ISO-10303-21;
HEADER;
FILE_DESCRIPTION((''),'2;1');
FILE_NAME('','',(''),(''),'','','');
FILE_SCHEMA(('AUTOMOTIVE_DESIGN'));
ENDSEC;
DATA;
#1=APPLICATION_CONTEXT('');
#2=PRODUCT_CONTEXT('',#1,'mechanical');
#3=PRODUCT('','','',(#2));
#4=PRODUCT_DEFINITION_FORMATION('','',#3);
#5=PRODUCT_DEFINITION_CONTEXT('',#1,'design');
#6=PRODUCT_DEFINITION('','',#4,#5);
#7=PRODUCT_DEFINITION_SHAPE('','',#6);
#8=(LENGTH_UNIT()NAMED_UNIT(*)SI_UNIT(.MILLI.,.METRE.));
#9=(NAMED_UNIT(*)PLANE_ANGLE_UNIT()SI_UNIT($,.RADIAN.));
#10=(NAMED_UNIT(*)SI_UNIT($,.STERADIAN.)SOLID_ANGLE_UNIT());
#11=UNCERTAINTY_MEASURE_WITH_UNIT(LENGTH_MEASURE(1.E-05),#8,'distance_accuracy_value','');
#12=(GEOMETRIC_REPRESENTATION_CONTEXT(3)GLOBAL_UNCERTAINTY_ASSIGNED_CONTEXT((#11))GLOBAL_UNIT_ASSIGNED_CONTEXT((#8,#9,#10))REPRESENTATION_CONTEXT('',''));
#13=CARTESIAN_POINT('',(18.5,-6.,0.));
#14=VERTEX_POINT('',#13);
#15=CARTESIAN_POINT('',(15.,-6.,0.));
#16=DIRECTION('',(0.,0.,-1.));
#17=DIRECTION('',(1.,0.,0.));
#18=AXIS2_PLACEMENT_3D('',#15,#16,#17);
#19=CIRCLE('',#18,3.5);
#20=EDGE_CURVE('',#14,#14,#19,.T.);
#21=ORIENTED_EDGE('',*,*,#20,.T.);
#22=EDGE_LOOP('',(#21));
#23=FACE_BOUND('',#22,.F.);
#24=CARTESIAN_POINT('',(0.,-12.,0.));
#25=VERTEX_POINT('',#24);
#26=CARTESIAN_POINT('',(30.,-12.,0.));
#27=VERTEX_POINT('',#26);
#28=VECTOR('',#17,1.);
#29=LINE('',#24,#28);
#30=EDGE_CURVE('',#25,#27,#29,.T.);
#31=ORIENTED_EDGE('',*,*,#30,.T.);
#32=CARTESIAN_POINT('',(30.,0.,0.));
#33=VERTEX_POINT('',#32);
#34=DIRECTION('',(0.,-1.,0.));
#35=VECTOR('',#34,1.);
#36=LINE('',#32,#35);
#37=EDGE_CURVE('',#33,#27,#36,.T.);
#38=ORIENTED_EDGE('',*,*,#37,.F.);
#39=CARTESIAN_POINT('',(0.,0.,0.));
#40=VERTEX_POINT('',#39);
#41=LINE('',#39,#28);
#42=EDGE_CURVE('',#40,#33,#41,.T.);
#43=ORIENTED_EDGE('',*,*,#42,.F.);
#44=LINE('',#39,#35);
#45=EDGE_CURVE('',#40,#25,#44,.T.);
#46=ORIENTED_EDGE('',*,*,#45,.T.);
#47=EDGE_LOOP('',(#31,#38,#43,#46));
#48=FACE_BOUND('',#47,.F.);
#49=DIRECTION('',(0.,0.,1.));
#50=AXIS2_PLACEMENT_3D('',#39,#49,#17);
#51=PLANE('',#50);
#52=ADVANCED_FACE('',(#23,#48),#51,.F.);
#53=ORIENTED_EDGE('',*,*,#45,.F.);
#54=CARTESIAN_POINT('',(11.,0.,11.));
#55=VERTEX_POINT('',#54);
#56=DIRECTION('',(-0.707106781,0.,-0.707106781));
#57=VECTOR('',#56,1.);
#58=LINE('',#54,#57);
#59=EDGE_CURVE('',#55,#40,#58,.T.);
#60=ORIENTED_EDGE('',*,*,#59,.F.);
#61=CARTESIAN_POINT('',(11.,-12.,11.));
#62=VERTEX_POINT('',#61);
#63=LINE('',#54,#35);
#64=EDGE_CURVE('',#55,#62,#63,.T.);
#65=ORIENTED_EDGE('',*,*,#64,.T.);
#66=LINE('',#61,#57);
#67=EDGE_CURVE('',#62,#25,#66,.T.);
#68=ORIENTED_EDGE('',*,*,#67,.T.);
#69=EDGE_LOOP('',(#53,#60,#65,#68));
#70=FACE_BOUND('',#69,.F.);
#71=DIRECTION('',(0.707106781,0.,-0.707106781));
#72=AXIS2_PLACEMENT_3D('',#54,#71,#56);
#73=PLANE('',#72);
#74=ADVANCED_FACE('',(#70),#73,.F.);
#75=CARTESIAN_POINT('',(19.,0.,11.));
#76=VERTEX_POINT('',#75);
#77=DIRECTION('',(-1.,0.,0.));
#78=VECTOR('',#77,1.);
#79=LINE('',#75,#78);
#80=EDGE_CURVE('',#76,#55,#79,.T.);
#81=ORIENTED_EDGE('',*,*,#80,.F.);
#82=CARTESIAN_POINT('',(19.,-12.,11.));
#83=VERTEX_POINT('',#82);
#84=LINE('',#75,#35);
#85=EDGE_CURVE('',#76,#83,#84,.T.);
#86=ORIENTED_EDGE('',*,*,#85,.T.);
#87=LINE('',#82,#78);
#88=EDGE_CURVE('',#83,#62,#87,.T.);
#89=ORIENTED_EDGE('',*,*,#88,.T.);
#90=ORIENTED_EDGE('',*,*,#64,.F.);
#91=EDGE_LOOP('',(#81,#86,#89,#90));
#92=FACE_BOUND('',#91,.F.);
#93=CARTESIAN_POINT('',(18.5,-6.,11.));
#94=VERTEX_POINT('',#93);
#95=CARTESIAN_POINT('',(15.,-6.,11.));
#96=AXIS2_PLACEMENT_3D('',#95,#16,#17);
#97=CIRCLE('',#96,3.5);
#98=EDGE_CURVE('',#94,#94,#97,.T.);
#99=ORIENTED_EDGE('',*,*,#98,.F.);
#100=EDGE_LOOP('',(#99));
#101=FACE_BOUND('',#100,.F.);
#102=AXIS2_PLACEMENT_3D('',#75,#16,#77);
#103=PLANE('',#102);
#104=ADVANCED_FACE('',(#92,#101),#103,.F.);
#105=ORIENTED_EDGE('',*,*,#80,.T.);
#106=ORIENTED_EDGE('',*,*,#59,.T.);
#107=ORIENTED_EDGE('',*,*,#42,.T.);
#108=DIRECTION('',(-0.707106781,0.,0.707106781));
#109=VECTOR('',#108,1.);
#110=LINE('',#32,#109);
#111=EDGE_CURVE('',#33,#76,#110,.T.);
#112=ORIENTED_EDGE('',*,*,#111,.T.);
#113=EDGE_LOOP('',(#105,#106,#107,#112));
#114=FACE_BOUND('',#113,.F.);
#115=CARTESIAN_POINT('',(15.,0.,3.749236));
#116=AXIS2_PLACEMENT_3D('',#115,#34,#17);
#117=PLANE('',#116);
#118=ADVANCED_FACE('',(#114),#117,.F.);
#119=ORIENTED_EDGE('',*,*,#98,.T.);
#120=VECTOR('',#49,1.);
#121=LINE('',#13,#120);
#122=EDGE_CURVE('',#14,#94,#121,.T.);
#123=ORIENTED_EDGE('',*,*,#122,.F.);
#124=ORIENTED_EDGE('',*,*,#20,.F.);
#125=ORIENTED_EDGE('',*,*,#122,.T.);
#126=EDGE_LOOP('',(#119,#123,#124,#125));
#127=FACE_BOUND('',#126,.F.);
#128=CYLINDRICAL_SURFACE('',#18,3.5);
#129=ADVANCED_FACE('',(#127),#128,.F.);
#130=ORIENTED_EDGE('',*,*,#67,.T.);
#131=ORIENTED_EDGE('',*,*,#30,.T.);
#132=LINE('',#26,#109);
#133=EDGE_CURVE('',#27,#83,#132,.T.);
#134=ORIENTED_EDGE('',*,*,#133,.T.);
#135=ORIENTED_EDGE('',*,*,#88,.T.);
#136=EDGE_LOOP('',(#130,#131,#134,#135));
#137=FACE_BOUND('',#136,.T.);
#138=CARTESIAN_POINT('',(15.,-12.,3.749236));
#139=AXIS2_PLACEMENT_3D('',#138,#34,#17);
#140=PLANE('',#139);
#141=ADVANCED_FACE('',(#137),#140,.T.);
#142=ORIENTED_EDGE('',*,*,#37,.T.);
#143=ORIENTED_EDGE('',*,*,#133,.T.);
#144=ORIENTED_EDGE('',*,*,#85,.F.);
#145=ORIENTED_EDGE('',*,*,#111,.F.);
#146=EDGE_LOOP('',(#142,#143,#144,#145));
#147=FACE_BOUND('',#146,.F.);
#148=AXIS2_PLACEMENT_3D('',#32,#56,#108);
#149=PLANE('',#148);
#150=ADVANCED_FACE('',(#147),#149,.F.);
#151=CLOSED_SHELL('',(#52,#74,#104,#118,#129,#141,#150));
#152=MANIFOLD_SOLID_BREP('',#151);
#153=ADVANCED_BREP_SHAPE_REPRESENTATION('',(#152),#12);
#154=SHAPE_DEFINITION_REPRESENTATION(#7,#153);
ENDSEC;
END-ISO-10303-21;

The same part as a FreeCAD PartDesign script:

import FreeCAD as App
import Part
import Sketcher


def add_polygon(sketch, points):
    """Adds a closed chain of lines whose ends are joined by coincident constraints."""
    first, n = sketch.GeometryCount, len(points)
    for a, b in zip(points, points[1:] + points[:1]):
        sketch.addGeometry(Part.LineSegment(App.Vector(*a, 0), App.Vector(*b, 0)), False)
    for i in range(n):
        sketch.addConstraint(Sketcher.Constraint("Coincident", first + i, 2, first + (i + 1) % n, 1))

doc = App.newDocument("Part")
params = doc.addObject("Spreadsheet::Sheet", "Params")
for row, (alias, value) in enumerate([
    ("sketch1_width", "30 mm"),
    ("sketch1_width2", "8 mm"),
    ("pad1_length", "12 mm"),
    ("sketch2_diameter", "7 mm"),
], start=1):
    params.set(f"A{row}", alias)
    params.set(f"B{row}", "=" + value)
    params.setAlias(f"B{row}", alias)

body = doc.addObject("PartDesign::Body", "Body")

# Sketch on XZ plane
sketch1 = body.newObject("Sketcher::SketchObject", "Sketch")
sketch1.AttachmentSupport = (doc.getObject("XZ_Plane"), [""])
sketch1.MapMode = "FlatFace"
add_polygon(sketch1, [(11, 11), (0, 0), (30, 0), (19, 11)])  # lines 0-3
sketch1.addConstraint(Sketcher.Constraint("Horizontal", 1))
sketch1.addConstraint(Sketcher.Constraint("Horizontal", 3))
sketch1.addConstraint(Sketcher.Constraint("Coincident", 0, 2, -1, 1))
sketch1.addConstraint(Sketcher.Constraint("Perpendicular", 0, 2))
sketch1.addConstraint(Sketcher.Constraint("Equal", 0, 2))
sketch1.addConstraint(Sketcher.Constraint("DistanceX", 1, 1, 1, 2, 30.0))
sketch1.addConstraint(Sketcher.Constraint("DistanceX", 3, 2, 3, 1, 8.0))
sketch1.setExpression("Constraints[9]", "Params.sketch1_width")
sketch1.setExpression("Constraints[10]", "Params.sketch1_width2")
pad1 = body.newObject("PartDesign::Pad", "Pad")
pad1.Profile = sketch1
pad1.setExpression("Length", "Params.pad1_length")

# Sketch on XY plane
sketch2 = body.newObject("Sketcher::SketchObject", "Sketch001")
sketch2.AttachmentSupport = (doc.getObject("XY_Plane"), [""])
sketch2.MapMode = "FlatFace"
sketch2.addGeometry(Part.Circle(App.Vector(15, -6, 0), App.Vector(0, 0, 1), 3.5), False)
sketch2.addConstraint(Sketcher.Constraint("Diameter", 0, 7.0))
sketch2.addConstraint(Sketcher.Constraint("DistanceX", -1, 1, 0, 3, 15.0))
sketch2.addConstraint(Sketcher.Constraint("DistanceY", 0, 3, -1, 1, 6.0))
sketch2.setExpression("Constraints[0]", "Params.sketch2_diameter")
pocket1 = body.newObject("PartDesign::Pocket", "Pocket")
pocket1.Profile = sketch2
pocket1.Type = "ThroughAll"
pocket1.Reversed = True

doc.recompute()
